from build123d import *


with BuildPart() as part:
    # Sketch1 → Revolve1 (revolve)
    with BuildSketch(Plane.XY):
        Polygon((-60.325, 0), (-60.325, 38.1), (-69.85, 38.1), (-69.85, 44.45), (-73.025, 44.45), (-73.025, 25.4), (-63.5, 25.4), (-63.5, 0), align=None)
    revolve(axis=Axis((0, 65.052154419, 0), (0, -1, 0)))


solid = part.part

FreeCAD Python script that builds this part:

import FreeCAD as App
import Part
import Sketcher
Q = App.Units.Quantity

doc = App.newDocument("Part")
params = doc.addObject("Spreadsheet::Sheet", "Params")
for row, (alias, value) in enumerate([
    ("sketch1_height", "1 in"),
    ("sketch1_height2", "1.5 in"),
    ("sketch1_height3", "0.25 in"),
    ("sketch1_width", "0.375 in"),
    ("revolution_angle", "360 deg"),
], start=1):
    params.set(f"A{row}", alias)
    params.set(f"B{row}", "=" + value)
    params.setAlias(f"B{row}", alias)

body = doc.addObject("PartDesign::Body", "Body")

# Sketch on XY plane
sketch1 = doc.addObject("Sketcher::SketchObject", "Sketch")
body.addObject(sketch1)
sketch1.AttachmentSupport = (doc.XY_Plane, [""])
sketch1.MapMode = "FlatFace"
sketch1.addGeometry([
    Part.LineSegment(App.Vector(-60.3, 0, 0), App.Vector(-60.3, 38.1, 0)),  # 0
    Part.LineSegment(App.Vector(-60.3, 38.1, 0), App.Vector(-69.8, 38.1, 0)),  # 1
    Part.LineSegment(App.Vector(-69.8, 38.1, 0), App.Vector(-69.8, 44.5, 0)),  # 2
    Part.LineSegment(App.Vector(-69.8, 44.5, 0), App.Vector(-73, 44.5, 0)),  # 3
    Part.LineSegment(App.Vector(-73, 44.5, 0), App.Vector(-73, 25.4, 0)),  # 4
    Part.LineSegment(App.Vector(-73, 25.4, 0), App.Vector(-63.5, 25.4, 0)),  # 5
    Part.LineSegment(App.Vector(-63.5, 25.4, 0), App.Vector(-63.5, 0, 0)),  # 6
    Part.LineSegment(App.Vector(-63.5, 0, 0), App.Vector(-60.3, 0, 0)),  # 7
], False)
sketch1.addConstraint([
    Sketcher.Constraint("Coincident", 0, 2, 1, 1),
    Sketcher.Constraint("Coincident", 1, 2, 2, 1),
    Sketcher.Constraint("Coincident", 2, 2, 3, 1),
    Sketcher.Constraint("Coincident", 3, 2, 4, 1),
    Sketcher.Constraint("Coincident", 4, 2, 5, 1),
    Sketcher.Constraint("Coincident", 5, 2, 6, 1),
    Sketcher.Constraint("Coincident", 6, 2, 7, 1),
    Sketcher.Constraint("Coincident", 7, 2, 0, 1),
    Sketcher.Constraint("Vertical", 0),
    Sketcher.Constraint("Horizontal", 1),
    Sketcher.Constraint("Vertical", 2),
    Sketcher.Constraint("Horizontal", 3),
    Sketcher.Constraint("Vertical", 4),
    Sketcher.Constraint("Horizontal", 5),
    Sketcher.Constraint("Vertical", 6),
    Sketcher.Constraint("Horizontal", 7),
    Sketcher.Constraint("PointOnObject", 6, 2, -1),
    Sketcher.Constraint("Equal", 1, 5),
    Sketcher.Constraint("DistanceY", 6, 2, 6, 1, Q("1 in")),
    Sketcher.Constraint("DistanceY", 0, 1, 0, 2, Q("1.5 in")),
    Sketcher.Constraint("DistanceY", 2, 1, 2, 2, Q("0.25 in")),
    Sketcher.Constraint("DistanceX", 5, 2, -1, 1, Q("2.5 in")),
    Sketcher.Constraint("DistanceX", 3, 2, 0, 2, Q("0.5 in")),
    Sketcher.Constraint("DistanceX", 1, 2, 1, 1, Q("0.375 in")),
])
sketch1.setExpression("Constraints[18]", "Params.sketch1_height")
sketch1.setExpression("Constraints[19]", "Params.sketch1_height2")
sketch1.setExpression("Constraints[20]", "Params.sketch1_height3")
sketch1.setExpression("Constraints[23]", "Params.sketch1_width")
revolution = doc.addObject("PartDesign::Revolution", "Revolution")
body.addObject(revolution)
revolution.Profile = sketch1
revolution.ReferenceAxis = (sketch1, ["V_Axis"])
revolution.setExpression("Angle", "Params.revolution_angle")

doc.recompute()
